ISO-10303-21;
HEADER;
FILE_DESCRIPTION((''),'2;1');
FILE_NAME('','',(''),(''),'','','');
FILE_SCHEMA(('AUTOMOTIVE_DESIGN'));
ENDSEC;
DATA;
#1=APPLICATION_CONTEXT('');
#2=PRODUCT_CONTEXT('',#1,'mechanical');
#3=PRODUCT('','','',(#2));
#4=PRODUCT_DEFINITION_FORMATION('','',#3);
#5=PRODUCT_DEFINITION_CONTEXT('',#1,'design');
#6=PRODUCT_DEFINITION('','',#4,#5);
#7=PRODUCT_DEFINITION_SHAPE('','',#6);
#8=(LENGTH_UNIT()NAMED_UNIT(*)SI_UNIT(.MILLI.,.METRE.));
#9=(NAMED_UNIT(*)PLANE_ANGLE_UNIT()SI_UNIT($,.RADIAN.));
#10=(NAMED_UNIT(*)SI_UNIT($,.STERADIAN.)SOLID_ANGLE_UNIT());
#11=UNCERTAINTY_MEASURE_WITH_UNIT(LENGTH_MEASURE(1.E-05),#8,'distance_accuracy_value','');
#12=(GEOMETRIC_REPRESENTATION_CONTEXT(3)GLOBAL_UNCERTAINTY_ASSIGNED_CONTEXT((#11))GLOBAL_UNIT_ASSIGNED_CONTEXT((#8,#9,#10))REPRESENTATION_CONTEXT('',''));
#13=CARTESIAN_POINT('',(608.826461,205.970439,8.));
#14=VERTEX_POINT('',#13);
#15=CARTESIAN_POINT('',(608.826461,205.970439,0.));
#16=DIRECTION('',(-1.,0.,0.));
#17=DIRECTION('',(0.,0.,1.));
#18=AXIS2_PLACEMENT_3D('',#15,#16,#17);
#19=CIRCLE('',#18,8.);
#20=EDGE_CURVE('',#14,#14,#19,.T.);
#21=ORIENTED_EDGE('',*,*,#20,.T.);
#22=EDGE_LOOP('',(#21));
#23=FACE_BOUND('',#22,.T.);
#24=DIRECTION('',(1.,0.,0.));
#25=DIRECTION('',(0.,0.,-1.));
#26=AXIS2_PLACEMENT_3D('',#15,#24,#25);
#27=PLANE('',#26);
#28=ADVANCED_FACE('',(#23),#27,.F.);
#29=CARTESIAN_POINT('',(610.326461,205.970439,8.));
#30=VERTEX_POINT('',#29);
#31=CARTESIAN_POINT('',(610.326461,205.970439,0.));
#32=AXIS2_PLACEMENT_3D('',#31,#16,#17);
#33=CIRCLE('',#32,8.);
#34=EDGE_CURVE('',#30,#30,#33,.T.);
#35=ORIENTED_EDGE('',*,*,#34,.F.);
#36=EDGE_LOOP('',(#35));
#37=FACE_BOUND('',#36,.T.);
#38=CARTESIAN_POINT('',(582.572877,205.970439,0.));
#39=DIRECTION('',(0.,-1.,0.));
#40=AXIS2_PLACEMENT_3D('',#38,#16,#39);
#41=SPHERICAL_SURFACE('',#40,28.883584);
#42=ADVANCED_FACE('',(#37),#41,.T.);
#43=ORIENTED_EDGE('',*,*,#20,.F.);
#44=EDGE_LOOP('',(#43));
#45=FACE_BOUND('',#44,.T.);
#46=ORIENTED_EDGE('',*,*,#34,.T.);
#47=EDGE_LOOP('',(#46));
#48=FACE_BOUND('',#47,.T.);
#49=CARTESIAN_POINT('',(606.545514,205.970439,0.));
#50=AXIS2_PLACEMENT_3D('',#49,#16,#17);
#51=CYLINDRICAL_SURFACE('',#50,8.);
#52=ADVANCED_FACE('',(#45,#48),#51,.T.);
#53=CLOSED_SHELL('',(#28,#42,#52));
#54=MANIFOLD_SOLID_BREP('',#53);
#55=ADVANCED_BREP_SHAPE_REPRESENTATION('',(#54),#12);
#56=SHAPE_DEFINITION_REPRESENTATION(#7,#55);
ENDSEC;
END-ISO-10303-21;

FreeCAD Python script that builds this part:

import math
import FreeCAD as App
import Part
import Sketcher
Q = App.Units.Quantity

doc = App.newDocument("Part")
body = doc.addObject("PartDesign::Body", "Body")

# Sketch on XY plane
sketch1 = doc.addObject("Sketcher::SketchObject", "Sketch")
body.addObject(sketch1)
sketch1.AttachmentSupport = (doc.XY_Plane, [""])
sketch1.MapMode = "FlatFace"
sketch1.addGeometry([
    Part.LineSegment(App.Vector(608.8, 214, 0), App.Vector(608.8, 206, 0)),
    Part.LineSegment(App.Vector(608.8, 206, 0), App.Vector(611.5, 206, 0)),
    Part.ArcOfCircle(Part.Circle(App.Vector(582.6, 206, 0), App.Vector(0, 0, 1), 28.9), math.radians(0), math.radians(16.08)),
    Part.LineSegment(App.Vector(610.3, 214, 0), App.Vector(608.8, 214, 0)),
], False)
sketch1.addGeometry(Part.LineSegment(App.Vector(582.6, 206, 0), App.Vector(611.5, 206, 0)), True)  # axis
sketch1.addConstraint([
    Sketcher.Constraint("Coincident", 0, 2, 1, 1),
    Sketcher.Constraint("Coincident", 1, 2, 2, 1),
    Sketcher.Constraint("Coincident", 2, 2, 3, 1),
    Sketcher.Constraint("Coincident", 3, 2, 0, 1),
    Sketcher.Constraint("Vertical", 0),
    Sketcher.Constraint("Horizontal", 1),
    Sketcher.Constraint("Horizontal", 3),
    Sketcher.Constraint("Horizontal", 4),
    Sketcher.Constraint("Coincident", 4, 1, 2, 3),
    Sketcher.Constraint("Coincident", 4, 2, 1, 2),
    Sketcher.Constraint("DistanceY", 0, 2, 0, 1, Q("8 mm")),
    Sketcher.Constraint("DistanceX", 3, 2, 3, 1, Q("1.5 mm")),
    Sketcher.Constraint("DistanceX", 1, 1, 1, 2, Q("2.63 mm")),
    Sketcher.Constraint("DistanceY", -1, 1, 2, 3, Q("205.970439 mm")),
    Sketcher.Constraint("DistanceX", -1, 1, 0, 2, Q("608.826461 mm")),
])
revolution = doc.addObject("PartDesign::Revolution", "Revolution")
body.addObject(revolution)
revolution.Profile = sketch1
revolution.ReferenceAxis = (sketch1, ["Axis0"])
revolution.Angle = 360

doc.recompute()
